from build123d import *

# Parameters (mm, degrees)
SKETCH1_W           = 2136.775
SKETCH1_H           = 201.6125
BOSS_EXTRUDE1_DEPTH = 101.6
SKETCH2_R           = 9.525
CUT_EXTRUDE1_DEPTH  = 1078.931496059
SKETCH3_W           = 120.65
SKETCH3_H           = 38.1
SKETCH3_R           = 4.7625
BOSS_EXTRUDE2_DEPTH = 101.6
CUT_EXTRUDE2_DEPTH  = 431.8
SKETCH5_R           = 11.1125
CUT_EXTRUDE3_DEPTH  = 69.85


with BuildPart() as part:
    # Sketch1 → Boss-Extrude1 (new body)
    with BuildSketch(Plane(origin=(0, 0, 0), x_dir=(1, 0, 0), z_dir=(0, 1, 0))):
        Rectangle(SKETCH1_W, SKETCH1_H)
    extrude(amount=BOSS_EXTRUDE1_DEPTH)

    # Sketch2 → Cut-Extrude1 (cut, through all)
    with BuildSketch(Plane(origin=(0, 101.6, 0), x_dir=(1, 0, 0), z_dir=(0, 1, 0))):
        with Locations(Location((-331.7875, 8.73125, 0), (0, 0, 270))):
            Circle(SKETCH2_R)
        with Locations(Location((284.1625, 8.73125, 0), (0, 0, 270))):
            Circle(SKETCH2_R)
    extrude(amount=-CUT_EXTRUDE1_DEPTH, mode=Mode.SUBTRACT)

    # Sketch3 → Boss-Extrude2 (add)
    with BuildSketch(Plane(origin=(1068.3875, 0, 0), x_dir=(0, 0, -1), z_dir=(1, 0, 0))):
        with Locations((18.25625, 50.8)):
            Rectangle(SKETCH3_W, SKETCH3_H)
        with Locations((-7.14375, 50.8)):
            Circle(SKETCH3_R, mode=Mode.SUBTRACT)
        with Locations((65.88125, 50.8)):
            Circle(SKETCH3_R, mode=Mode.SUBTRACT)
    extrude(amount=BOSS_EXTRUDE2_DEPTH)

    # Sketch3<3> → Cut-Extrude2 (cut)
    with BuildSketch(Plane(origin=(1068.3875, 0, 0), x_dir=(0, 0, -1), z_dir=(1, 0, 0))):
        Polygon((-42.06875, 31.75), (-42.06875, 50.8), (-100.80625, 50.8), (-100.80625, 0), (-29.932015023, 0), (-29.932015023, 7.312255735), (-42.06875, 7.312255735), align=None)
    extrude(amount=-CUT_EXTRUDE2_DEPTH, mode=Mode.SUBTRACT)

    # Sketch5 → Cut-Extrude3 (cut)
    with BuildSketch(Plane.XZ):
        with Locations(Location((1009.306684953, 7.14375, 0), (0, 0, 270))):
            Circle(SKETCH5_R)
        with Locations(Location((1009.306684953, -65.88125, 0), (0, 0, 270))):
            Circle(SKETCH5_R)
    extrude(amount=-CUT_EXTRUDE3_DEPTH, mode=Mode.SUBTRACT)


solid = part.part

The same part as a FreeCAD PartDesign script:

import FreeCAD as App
import Part
import Sketcher
Q = App.Units.Quantity


def add_polygon(sketch, points):
    """Adds a closed chain of lines whose ends are joined by coincident constraints."""
    first, n = sketch.GeometryCount, len(points)
    for a, b in zip(points, points[1:] + points[:1]):
        sketch.addGeometry(Part.LineSegment(App.Vector(*a, 0), App.Vector(*b, 0)), False)
    for i in range(n):
        sketch.addConstraint(Sketcher.Constraint("Coincident", first + i, 2, first + (i + 1) % n, 1))

doc = App.newDocument("Part")
body = doc.addObject("PartDesign::Body", "Body")

sketch1 = body.newObject("Sketcher::SketchObject", "Sketch")
sketch1.AttachmentSupport = (doc.getObject("XZ_Plane"), [""])
sketch1.MapMode = "FlatFace"
add_polygon(sketch1, [(-1068, -101), (-1068, 101), (1068, 101), (1068, -101)])
sketch1.addConstraint([
    Sketcher.Constraint("Vertical", 0),
    Sketcher.Constraint("Horizontal", 1),
    Sketcher.Constraint("Vertical", 2),
    Sketcher.Constraint("Horizontal", 3),
    Sketcher.Constraint("Symmetric", 0, 2, 2, 2, -1, 1),
    Sketcher.Constraint("DistanceX", 1, 1, 1, 2, Q("84.125 in")),
    Sketcher.Constraint("DistanceY", 0, 1, 0, 2, Q("7.9375 in")),
])
pad1 = body.newObject("PartDesign::Pad", "Pad")
pad1.Profile = sketch1
pad1.Length = Q("4 in")
pad1.Reversed = True

sketch2 = body.newObject("Sketcher::SketchObject", "Sketch001")
sketch2.AttachmentSupport = (doc.getObject("XZ_Plane"), [""])
sketch2.MapMode = "FlatFace"
sketch2.AttachmentOffset = App.Placement(App.Vector(0, 0, -4 * 25.4), App.Rotation())
sketch2.addGeometry([
    Part.Circle(App.Vector(-332, -9, 0), App.Vector(0, 0, 1), 10),
    Part.Circle(App.Vector(284, -9, 0), App.Vector(0, 0, 1), 10),
], False)
sketch2.addConstraint([
    Sketcher.Constraint("Equal", 0, 1),
    Sketcher.Constraint("Horizontal", 0, 3, 1, 3),
    Sketcher.Constraint("Diameter", 0, Q("0.75 in")),
    Sketcher.Constraint("DistanceX", 0, 3, 1, 3, Q("24.25 in")),
    Sketcher.Constraint("DistanceX", 0, 3, -1, 1, Q("13.0625 in")),
    Sketcher.Constraint("DistanceY", 0, 3, -1, 1, Q("0.34375 in")),
])
pocket1 = body.newObject("PartDesign::Pocket", "Pocket")
pocket1.Profile = sketch2
pocket1.Type = "ThroughAll"
pocket1.Reversed = True

sketch3 = body.newObject("Sketcher::SketchObject", "Sketch002")
sketch3.AttachmentSupport = (doc.getObject("YZ_Plane"), [""])
sketch3.MapMode = "FlatFace"
sketch3.AttachmentOffset = App.Placement(App.Vector(0, 0, 42.0625 * 25.4), App.Rotation())
add_polygon(sketch3, [(69.8, 42.1), (31.8, 42.1), (31.8, -78.6), (69.8, -78.6)])
sketch3.addGeometry(Part.Circle(App.Vector(50.8, 7.1, 0), App.Vector(0, 0, 1), 4.8), False)
sketch3.addGeometry(Part.Circle(App.Vector(50.8, -65.9, 0), App.Vector(0, 0, 1), 4.8), False)
sketch3.addConstraint([
    Sketcher.Constraint("Horizontal", 0),
    Sketcher.Constraint("Vertical", 1),
    Sketcher.Constraint("Horizontal", 2),
    Sketcher.Constraint("Vertical", 3),
    Sketcher.Constraint("Equal", 4, 5),
    Sketcher.Constraint("Vertical", 4, 3, 5, 3),
    Sketcher.Constraint("Diameter", 4, Q("0.375 in")),
    Sketcher.Constraint("DistanceX", 0, 2, 0, 1, Q("1.5 in")),
    Sketcher.Constraint("DistanceX", -1, 1, 4, 3, Q("2 in")),
    Sketcher.Constraint("DistanceY", 1, 2, 1, 1, Q("4.75 in")),
    Sketcher.Constraint("DistanceY", 1, 2, 5, 3, Q("0.5 in")),
    Sketcher.Constraint("DistanceX", -1, 1, 0, 2, Q("1.25 in")),
    Sketcher.Constraint("DistanceY", -1, 1, 4, 3, Q("0.28125 in")),
    Sketcher.Constraint("DistanceY", 5, 3, -1, 1, Q("2.59375 in")),
])
pad2 = body.newObject("PartDesign::Pad", "Pad001")
pad2.Profile = sketch3
pad2.Length = Q("4 in")

sketch4 = body.newObject("Sketcher::SketchObject", "Sketch003")
sketch4.AttachmentSupport = (doc.getObject("YZ_Plane"), [""])
sketch4.MapMode = "FlatFace"
sketch4.AttachmentOffset = App.Placement(App.Vector(0, 0, 42.0625 * 25.4), App.Rotation())
add_polygon(sketch4, [(51, 42), (51, 101), (0, 101), (0, 30), (7, 30), (7, 42)])
sketch4.addConstraint([
    Sketcher.Constraint("Vertical", 0),
    Sketcher.Constraint("Horizontal", 1),
    Sketcher.Constraint("Vertical", 2),
    Sketcher.Constraint("Horizontal", 3),
    Sketcher.Constraint("Vertical", 4),
    Sketcher.Constraint("Horizontal", 5),
    Sketcher.Constraint("PointOnObject", 1, 2, -2),
    Sketcher.Constraint("DistanceX", 1, 2, 1, 1, Q("2 in")),
    Sketcher.Constraint("DistanceY", 0, 1, 0, 2, Q("2.3125 in")),
    Sketcher.Constraint("DistanceY", -1, 1, 0, 2, Q("3.96875 in")),
    Sketcher.Constraint("DistanceX", 3, 1, 3, 2, Q("7.312256 mm")),
    Sketcher.Constraint("DistanceY", 2, 2, 2, 1, Q("70.874235 mm")),
])
pocket2 = body.newObject("PartDesign::Pocket", "Pocket001")
pocket2.Profile = sketch4
pocket2.Length = Q("17 in")

sketch5 = body.newObject("Sketcher::SketchObject", "Sketch004")
sketch5.AttachmentSupport = (doc.getObject("XZ_Plane"), [""])
sketch5.MapMode = "FlatFace"
sketch5.addGeometry([
    Part.Circle(App.Vector(1009, 7, 0), App.Vector(0, 0, 1), 11),
    Part.Circle(App.Vector(1009, -66, 0), App.Vector(0, 0, 1), 11),
], False)
sketch5.addConstraint([
    Sketcher.Constraint("Equal", 0, 1),
    Sketcher.Constraint("Vertical", 0, 3, 1, 3),
    Sketcher.Constraint("Diameter", 0, Q("0.875 in")),
    Sketcher.Constraint("DistanceY", -1, 1, 0, 3, Q("0.28125 in")),
    Sketcher.Constraint("DistanceY", 1, 3, -1, 1, Q("2.59375 in")),
    Sketcher.Constraint("DistanceX", -1, 1, 0, 3, Q("1009.306685 mm")),
])
pocket3 = body.newObject("PartDesign::Pocket", "Pocket002")
pocket3.Profile = sketch5
pocket3.Length = Q("2.75 in")

doc.recompute()
